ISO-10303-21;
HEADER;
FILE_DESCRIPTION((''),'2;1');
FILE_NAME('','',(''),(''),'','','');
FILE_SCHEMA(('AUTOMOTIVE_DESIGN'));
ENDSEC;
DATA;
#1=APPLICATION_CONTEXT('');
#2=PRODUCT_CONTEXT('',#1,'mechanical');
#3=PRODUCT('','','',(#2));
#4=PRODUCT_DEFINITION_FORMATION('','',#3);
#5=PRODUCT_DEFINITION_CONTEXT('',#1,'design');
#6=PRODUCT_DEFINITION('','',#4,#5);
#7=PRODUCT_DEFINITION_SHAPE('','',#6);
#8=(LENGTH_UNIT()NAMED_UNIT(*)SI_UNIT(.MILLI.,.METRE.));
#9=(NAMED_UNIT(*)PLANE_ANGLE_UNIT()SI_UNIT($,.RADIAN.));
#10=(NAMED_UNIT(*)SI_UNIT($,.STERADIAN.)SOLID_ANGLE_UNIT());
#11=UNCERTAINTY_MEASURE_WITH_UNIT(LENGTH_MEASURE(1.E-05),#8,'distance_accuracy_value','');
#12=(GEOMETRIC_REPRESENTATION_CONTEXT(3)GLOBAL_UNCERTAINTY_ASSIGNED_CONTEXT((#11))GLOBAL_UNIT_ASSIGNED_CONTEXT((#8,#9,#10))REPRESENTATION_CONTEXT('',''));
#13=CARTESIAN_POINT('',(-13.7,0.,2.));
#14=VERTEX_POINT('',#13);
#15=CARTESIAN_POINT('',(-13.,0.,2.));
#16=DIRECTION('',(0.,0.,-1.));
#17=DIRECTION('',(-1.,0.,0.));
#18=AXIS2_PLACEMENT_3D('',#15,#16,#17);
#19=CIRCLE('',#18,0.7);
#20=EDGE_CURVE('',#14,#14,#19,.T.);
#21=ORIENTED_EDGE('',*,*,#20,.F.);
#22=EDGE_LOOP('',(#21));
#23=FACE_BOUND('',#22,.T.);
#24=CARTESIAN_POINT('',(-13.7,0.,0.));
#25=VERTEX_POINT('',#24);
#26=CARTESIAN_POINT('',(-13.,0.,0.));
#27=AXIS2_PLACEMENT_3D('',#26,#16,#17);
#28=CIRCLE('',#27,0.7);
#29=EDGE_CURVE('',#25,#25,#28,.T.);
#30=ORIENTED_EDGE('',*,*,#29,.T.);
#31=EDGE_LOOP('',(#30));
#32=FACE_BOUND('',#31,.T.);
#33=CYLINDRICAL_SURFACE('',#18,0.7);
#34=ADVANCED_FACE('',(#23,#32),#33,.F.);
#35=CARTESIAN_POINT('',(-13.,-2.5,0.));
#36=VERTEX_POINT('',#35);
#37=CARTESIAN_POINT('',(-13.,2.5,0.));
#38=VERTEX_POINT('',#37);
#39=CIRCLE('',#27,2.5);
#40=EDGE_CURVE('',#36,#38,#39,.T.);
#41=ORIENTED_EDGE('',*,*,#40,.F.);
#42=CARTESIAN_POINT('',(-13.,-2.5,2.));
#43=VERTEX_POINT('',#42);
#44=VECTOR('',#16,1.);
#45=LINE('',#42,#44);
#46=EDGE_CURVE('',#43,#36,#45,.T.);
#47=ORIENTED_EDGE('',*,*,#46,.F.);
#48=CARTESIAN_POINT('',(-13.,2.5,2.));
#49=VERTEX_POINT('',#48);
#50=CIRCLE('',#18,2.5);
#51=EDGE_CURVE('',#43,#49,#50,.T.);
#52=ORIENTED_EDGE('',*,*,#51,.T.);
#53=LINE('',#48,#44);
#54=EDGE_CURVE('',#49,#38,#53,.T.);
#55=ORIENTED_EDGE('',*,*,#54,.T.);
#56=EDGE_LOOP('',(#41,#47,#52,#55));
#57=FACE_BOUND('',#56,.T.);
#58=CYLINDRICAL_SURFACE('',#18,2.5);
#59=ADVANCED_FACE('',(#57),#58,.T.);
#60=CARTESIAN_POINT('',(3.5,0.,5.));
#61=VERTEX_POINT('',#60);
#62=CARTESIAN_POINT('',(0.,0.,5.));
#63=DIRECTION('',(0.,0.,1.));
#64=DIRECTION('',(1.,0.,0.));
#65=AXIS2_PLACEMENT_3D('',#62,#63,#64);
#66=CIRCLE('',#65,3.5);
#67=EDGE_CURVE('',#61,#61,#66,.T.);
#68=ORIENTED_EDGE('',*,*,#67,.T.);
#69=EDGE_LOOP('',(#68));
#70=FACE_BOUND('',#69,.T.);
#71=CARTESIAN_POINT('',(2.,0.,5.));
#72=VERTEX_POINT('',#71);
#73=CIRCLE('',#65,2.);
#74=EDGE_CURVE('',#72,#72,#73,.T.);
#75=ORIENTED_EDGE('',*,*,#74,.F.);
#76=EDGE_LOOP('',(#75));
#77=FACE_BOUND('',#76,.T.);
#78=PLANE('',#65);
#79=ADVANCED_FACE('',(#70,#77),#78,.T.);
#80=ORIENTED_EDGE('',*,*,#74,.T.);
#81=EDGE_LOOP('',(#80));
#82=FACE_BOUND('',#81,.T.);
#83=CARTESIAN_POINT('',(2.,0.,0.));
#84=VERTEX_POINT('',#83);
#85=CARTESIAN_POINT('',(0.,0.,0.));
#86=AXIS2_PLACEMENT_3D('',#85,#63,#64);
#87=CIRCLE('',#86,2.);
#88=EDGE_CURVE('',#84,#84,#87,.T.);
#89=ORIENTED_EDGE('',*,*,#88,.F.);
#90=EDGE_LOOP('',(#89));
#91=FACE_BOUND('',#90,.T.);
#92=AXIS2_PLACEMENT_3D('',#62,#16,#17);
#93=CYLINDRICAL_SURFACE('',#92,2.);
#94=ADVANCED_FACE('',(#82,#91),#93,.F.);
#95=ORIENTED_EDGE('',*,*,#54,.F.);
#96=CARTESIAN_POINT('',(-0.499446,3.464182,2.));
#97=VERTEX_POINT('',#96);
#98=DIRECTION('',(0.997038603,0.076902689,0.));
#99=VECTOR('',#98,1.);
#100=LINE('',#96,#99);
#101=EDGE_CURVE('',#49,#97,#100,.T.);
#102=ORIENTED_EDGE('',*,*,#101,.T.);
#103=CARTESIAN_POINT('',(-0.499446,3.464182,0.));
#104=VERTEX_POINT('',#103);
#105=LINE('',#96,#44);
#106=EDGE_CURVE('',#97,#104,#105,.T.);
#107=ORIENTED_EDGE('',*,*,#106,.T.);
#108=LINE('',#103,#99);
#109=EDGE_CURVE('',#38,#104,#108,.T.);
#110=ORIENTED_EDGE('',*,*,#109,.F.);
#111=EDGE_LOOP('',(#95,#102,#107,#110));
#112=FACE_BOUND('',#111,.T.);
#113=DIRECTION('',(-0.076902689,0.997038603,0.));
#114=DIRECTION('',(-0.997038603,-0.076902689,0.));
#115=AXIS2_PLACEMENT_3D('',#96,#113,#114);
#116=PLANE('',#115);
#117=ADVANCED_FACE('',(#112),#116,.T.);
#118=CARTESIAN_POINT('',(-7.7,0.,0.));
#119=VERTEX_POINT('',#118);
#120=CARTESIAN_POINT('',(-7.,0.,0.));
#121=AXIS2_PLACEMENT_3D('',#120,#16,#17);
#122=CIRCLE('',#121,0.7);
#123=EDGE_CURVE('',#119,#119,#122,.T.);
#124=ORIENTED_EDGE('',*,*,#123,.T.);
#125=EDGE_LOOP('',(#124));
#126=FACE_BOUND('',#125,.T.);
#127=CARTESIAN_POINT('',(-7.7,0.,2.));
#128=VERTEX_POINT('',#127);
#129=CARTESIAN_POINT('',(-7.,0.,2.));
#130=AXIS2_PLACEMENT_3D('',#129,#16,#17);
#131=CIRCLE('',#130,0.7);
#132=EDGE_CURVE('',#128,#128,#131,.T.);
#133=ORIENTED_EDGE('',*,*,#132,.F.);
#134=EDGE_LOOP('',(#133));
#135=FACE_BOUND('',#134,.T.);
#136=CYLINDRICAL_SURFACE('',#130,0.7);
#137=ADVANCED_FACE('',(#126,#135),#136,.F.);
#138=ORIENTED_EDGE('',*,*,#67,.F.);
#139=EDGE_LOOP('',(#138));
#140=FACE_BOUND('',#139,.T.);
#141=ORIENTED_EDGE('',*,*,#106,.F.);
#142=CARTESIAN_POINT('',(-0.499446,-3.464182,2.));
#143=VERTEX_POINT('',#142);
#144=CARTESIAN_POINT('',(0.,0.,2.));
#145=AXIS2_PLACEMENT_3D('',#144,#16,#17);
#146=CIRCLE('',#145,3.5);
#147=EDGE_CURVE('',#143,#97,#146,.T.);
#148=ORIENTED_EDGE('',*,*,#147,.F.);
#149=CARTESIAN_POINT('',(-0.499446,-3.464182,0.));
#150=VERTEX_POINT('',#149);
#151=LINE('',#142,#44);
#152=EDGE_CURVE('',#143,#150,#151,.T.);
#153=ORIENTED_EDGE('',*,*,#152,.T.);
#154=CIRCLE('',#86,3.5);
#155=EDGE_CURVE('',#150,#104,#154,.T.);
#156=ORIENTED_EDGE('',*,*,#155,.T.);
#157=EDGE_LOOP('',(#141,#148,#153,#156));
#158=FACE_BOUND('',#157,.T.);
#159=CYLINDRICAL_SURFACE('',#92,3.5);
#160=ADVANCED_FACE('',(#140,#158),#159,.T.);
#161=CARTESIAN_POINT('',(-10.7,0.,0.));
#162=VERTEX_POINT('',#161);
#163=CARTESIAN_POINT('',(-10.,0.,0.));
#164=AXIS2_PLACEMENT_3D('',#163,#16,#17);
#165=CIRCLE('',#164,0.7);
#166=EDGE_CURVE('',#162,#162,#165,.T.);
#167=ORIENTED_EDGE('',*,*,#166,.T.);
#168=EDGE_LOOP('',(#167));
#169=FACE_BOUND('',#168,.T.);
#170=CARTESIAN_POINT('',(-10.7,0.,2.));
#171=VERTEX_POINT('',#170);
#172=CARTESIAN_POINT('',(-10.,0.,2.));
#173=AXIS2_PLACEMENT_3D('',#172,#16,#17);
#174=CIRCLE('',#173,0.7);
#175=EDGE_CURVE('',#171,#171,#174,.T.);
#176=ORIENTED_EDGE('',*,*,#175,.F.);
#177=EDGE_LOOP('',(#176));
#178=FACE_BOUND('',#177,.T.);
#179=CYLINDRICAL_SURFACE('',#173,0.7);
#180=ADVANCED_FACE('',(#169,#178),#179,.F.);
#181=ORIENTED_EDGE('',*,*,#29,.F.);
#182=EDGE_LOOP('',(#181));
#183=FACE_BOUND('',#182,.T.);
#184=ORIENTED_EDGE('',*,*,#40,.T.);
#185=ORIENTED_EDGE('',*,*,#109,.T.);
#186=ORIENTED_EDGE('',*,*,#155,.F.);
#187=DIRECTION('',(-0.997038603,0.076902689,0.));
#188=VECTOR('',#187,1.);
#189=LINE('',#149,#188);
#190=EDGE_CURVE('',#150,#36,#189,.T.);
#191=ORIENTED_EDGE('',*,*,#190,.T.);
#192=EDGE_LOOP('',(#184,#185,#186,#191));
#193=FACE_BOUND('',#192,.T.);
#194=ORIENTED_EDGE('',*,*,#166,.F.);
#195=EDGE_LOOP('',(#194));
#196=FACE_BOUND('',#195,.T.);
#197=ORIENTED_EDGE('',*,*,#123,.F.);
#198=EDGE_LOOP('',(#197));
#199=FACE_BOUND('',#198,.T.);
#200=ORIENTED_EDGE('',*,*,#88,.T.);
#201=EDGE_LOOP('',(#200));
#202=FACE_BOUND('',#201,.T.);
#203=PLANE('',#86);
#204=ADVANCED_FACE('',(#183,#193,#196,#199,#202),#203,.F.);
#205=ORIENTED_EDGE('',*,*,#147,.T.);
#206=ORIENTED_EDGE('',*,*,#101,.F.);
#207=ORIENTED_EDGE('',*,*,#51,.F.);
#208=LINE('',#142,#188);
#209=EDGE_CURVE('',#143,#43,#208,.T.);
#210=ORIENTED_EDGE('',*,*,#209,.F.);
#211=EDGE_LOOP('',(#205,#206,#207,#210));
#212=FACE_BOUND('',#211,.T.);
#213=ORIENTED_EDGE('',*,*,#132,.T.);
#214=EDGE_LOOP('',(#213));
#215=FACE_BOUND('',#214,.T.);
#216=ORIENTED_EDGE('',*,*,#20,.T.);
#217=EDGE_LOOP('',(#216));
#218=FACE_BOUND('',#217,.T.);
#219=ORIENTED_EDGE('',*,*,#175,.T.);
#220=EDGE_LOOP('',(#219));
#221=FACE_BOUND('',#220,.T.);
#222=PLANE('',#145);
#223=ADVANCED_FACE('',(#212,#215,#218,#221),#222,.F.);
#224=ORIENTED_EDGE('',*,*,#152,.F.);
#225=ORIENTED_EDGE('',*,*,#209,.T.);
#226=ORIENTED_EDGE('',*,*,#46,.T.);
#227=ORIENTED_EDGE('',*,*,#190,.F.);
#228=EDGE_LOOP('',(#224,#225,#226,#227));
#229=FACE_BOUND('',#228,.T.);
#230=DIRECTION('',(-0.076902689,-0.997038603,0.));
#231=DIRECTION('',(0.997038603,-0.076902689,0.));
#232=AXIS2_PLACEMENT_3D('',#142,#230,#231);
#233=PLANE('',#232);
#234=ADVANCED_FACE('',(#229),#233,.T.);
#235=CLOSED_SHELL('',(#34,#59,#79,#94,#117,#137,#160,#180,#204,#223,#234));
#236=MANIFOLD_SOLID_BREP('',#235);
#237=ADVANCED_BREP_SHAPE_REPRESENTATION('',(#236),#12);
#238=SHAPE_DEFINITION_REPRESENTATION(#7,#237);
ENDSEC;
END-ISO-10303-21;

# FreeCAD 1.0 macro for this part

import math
import FreeCAD as App
import Part
import Sketcher
from FreeCAD import Vector

doc = App.newDocument("Part")
body = doc.addObject("PartDesign::Body", "Body")

# Sketch on XY plane
sketch1 = body.newObject("Sketcher::SketchObject", "Sketch")
sketch1.AttachmentSupport = (doc.getObject("XY_Plane"), [""])
sketch1.MapMode = "FlatFace"
sketch1.addGeometry([
    Part.Circle(Vector(0, 0, 0), Vector(0, 0, 1), 3.5),
    Part.Circle(Vector(0, 0, 0), Vector(0, 0, 1), 2),
], False)
sketch1.addConstraint([
    Sketcher.Constraint("Coincident", 0, 3, -1, 1),
    Sketcher.Constraint("Coincident", 1, 3, -1, 1),
    Sketcher.Constraint("Diameter", 0, 7.0),
    Sketcher.Constraint("Diameter", 1, 4.0),
])
pad1 = body.newObject("PartDesign::Pad", "Pad")
pad1.Profile = sketch1
pad1.Length = 5

# Sketch on XY plane
sketch2 = body.newObject("Sketcher::SketchObject", "Sketch001")
sketch2.AttachmentSupport = (doc.getObject("XY_Plane"), [""])
sketch2.MapMode = "FlatFace"
sketch2.addGeometry([
    Part.LineSegment(Vector(-13, 2.5, 0), Vector(-0.5, 3.5, 0)),  # 0
    Part.ArcOfCircle(Part.Circle(Vector(0, 0, 0), Vector(0, 0, 1), 3.5), math.radians(-98), math.radians(98)),  # 1
    Part.LineSegment(Vector(-0.5, -3.5, 0), Vector(-13, -2.5, 0)),  # 2
    Part.ArcOfCircle(Part.Circle(Vector(-13, 0, 0), Vector(0, 0, 1), 2.5), math.radians(90), math.radians(270)),  # 3
    Part.Circle(Vector(-13, 0, 0), Vector(0, 0, 1), 0.7),  # 4
    Part.Circle(Vector(-10, 0, 0), Vector(0, 0, 1), 0.7),  # 5
    Part.Circle(Vector(-7, 0, 0), Vector(0, 0, 1), 0.7),  # 6
    Part.Circle(Vector(0, 0, 0), Vector(0, 0, 1), 2),  # 7
], False)
sketch2.addConstraint([
    Sketcher.Constraint("Coincident", 0, 2, 1, 2),
    Sketcher.Constraint("Coincident", 1, 1, 2, 1),
    Sketcher.Constraint("Coincident", 2, 2, 3, 2),
    Sketcher.Constraint("Coincident", 3, 1, 0, 1),
    Sketcher.Constraint("Coincident", 1, 3, -1, 1),
    Sketcher.Constraint("Coincident", 7, 3, -1, 1),
    Sketcher.Constraint("Coincident", 4, 3, 3, 3),
    Sketcher.Constraint("Equal", 4, 5),
    Sketcher.Constraint("Equal", 5, 6),
    Sketcher.Constraint("Symmetric", 2, 2, 3, 1, -1),
    Sketcher.Constraint("PointOnObject", 5, 3, -1),
    Sketcher.Constraint("PointOnObject", 6, 3, -1),
    Sketcher.Constraint("Vertical", 0, 2, 1, 1),
    Sketcher.Constraint("Vertical", 4, 3, 2, 2),
    Sketcher.Constraint("Diameter", 7, 4.0),
    Sketcher.Constraint("Diameter", 4, 1.4),
    Sketcher.Constraint("Radius", 1, 3.5),
    Sketcher.Constraint("Radius", 3, 2.5),
    Sketcher.Constraint("DistanceX", 3, 3, -1, 1, 13.0),
    Sketcher.Constraint("DistanceX", 5, 3, -1, 1, 10.0),
    Sketcher.Constraint("DistanceX", 6, 3, -1, 1, 7.0),
    Sketcher.Constraint("DistanceY", -1, 1, 0, 2, 3.464182),
])
pad2 = body.newObject("PartDesign::Pad", "Pad001")
pad2.Profile = sketch2
pad2.Length = 2

doc.recompute()
